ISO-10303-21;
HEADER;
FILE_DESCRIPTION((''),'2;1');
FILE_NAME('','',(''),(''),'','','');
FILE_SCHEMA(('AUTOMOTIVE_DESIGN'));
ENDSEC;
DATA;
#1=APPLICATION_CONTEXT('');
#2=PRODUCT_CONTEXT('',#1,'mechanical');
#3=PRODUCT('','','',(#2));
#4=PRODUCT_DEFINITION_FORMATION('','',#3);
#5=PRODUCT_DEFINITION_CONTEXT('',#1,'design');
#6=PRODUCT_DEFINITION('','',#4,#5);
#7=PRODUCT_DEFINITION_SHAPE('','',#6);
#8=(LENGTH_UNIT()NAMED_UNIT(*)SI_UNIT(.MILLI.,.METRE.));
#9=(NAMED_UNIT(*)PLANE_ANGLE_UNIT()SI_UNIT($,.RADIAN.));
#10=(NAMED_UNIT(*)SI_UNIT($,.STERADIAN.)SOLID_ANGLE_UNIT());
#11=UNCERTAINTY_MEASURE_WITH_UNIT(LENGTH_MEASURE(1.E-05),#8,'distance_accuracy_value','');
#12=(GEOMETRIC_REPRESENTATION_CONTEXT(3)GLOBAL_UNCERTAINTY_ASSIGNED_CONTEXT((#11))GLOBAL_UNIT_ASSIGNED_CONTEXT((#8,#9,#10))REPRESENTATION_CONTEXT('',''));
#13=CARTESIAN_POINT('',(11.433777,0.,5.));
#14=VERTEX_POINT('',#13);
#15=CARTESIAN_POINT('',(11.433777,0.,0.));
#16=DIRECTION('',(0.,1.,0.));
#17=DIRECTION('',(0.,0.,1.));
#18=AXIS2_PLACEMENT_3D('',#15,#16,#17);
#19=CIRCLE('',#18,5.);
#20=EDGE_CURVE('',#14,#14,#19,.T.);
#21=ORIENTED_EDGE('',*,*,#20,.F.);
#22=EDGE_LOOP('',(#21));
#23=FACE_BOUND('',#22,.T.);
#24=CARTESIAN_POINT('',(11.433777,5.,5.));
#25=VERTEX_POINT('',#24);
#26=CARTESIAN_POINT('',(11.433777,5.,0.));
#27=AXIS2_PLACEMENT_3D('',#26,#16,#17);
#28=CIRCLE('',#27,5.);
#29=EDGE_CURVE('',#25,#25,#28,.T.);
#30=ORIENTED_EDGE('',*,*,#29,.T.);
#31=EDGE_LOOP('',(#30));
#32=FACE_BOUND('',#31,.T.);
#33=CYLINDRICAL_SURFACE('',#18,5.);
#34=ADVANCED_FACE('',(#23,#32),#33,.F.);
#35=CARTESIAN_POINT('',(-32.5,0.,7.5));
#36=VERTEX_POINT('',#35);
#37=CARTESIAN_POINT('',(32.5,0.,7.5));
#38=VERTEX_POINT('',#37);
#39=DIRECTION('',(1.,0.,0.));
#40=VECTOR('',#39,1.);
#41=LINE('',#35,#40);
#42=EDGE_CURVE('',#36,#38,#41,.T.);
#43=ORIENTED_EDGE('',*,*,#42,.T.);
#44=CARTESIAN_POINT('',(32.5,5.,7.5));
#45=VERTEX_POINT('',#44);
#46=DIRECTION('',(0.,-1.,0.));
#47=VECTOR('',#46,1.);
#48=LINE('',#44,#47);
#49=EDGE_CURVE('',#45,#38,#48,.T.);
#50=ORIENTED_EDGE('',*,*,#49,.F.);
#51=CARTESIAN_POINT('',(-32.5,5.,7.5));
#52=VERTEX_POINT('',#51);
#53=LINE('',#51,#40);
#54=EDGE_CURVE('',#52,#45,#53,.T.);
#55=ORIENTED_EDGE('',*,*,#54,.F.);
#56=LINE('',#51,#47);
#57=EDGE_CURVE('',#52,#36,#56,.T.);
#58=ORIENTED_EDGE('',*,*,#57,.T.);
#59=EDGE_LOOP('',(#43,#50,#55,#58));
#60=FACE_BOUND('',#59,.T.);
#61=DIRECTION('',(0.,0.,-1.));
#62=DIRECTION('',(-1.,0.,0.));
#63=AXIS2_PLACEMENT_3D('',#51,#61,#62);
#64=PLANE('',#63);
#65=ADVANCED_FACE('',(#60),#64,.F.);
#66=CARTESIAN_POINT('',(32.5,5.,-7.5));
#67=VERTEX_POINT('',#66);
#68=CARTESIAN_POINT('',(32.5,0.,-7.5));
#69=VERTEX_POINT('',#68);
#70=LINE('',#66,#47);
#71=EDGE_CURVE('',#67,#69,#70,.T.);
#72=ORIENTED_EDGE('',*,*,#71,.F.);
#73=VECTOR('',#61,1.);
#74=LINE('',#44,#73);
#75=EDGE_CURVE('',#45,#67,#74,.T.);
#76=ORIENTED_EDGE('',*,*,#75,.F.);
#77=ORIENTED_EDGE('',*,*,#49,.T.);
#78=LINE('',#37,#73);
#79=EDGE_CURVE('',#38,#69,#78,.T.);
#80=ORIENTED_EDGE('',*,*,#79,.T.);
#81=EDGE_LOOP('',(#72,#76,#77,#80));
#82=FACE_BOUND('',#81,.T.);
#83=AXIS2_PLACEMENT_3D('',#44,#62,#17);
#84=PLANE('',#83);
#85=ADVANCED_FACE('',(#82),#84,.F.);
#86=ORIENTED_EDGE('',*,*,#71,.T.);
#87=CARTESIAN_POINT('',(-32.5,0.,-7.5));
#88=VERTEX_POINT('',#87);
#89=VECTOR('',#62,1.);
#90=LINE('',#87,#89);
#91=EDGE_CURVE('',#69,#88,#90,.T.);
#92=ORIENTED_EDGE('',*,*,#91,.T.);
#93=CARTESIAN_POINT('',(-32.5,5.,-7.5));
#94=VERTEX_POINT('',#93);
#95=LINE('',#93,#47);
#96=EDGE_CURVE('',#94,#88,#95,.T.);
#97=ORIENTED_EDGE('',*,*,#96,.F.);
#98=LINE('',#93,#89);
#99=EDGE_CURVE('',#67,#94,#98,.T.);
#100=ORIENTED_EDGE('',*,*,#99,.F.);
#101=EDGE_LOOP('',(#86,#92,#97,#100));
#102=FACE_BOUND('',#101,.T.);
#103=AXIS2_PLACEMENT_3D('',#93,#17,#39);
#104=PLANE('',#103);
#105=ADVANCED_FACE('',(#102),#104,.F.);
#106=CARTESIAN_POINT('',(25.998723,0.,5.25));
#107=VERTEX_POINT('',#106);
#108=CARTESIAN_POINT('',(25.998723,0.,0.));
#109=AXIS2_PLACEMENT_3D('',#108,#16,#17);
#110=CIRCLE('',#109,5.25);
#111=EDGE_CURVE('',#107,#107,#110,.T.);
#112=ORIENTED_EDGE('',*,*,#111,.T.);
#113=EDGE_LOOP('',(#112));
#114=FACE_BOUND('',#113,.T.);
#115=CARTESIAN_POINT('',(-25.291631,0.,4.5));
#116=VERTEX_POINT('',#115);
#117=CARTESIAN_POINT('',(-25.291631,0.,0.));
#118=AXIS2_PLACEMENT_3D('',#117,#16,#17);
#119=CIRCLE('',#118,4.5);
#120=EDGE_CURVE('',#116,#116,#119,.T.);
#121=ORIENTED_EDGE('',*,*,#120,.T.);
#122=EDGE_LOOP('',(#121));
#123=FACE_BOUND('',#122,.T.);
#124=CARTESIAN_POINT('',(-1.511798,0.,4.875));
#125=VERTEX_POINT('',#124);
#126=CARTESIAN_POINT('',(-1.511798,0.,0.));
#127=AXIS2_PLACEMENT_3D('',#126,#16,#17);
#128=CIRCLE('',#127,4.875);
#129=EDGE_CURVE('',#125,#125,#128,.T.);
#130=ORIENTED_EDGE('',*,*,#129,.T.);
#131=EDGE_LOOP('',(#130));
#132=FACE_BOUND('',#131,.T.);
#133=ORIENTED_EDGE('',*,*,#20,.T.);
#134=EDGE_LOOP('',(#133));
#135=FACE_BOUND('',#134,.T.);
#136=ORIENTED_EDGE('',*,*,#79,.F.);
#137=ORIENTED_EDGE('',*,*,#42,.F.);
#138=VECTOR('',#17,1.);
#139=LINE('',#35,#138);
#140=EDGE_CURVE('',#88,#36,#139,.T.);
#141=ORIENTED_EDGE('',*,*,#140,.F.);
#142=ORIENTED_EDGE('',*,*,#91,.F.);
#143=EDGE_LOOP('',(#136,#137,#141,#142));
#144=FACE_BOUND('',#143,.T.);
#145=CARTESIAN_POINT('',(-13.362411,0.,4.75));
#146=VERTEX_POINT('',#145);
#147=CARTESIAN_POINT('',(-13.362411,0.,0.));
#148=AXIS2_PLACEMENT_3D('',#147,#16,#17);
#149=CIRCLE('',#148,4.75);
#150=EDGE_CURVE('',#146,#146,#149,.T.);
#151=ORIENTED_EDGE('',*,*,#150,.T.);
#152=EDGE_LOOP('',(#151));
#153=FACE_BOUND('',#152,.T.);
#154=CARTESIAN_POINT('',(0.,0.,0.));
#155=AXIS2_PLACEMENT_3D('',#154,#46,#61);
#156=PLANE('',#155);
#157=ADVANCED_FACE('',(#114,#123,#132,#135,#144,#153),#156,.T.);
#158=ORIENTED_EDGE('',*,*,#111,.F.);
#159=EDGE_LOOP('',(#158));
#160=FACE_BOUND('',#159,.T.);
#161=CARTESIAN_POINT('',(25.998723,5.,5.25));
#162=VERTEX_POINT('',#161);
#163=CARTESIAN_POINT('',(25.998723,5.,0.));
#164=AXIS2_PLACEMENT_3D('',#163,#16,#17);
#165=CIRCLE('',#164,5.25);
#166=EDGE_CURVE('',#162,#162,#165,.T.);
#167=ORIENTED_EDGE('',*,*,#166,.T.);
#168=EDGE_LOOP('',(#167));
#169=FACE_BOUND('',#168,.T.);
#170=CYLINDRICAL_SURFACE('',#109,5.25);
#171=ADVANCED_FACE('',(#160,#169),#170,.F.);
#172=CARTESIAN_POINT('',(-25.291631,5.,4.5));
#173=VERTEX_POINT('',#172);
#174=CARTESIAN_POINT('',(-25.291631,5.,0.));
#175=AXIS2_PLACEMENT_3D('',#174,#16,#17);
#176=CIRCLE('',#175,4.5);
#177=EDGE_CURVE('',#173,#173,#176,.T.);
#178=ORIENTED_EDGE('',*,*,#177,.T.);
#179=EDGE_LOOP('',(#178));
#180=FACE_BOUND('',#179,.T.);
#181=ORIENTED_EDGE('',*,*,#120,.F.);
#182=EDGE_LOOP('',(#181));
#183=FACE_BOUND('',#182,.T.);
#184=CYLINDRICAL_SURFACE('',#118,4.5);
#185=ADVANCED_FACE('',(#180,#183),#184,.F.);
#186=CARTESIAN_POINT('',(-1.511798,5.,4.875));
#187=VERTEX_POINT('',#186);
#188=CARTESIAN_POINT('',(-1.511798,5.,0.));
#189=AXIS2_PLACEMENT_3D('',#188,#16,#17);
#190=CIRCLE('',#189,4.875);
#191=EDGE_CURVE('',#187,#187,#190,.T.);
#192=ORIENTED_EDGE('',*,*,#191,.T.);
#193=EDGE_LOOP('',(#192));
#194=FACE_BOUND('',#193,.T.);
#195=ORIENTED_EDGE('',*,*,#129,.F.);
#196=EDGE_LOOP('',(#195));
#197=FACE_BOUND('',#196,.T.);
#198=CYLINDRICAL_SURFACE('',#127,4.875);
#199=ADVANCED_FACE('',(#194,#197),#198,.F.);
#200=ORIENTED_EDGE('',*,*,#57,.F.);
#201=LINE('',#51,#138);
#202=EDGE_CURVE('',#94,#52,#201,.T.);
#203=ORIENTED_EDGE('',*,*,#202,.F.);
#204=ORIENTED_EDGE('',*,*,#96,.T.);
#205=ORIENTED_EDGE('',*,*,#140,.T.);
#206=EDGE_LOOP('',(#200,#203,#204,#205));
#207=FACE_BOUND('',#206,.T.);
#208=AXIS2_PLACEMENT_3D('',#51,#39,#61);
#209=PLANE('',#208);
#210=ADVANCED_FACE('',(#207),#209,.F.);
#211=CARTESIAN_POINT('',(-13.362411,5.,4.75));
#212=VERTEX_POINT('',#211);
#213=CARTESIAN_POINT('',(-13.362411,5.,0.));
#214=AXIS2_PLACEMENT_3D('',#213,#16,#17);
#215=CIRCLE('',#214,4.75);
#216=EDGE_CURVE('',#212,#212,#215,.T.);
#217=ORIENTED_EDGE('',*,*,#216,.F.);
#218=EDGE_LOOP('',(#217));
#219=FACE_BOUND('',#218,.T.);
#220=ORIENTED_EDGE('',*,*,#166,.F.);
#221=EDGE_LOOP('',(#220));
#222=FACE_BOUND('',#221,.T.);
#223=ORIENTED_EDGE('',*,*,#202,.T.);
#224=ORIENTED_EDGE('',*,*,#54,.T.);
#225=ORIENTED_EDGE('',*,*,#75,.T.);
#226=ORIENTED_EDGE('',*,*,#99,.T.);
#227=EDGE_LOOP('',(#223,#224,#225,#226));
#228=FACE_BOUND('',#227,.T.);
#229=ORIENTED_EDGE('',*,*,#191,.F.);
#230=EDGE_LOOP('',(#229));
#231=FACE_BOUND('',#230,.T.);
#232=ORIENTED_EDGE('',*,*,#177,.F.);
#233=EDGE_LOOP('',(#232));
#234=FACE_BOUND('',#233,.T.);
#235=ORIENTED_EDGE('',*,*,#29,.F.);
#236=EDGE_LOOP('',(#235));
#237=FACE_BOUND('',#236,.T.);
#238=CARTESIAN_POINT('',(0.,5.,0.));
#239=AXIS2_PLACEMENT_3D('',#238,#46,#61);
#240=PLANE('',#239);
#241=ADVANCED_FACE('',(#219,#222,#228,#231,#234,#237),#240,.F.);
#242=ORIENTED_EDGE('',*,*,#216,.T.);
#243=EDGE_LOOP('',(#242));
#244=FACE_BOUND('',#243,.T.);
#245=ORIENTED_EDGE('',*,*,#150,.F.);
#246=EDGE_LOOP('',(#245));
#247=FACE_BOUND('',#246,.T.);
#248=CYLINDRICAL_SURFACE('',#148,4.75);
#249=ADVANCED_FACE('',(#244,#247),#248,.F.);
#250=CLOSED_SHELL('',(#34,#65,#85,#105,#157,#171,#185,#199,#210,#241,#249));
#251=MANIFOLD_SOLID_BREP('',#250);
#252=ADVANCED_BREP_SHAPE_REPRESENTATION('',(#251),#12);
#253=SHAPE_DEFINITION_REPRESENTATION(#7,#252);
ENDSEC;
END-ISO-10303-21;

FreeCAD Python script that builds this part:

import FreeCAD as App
import Part
import Sketcher


def add_polygon(sketch, points):
    """Adds a closed chain of lines whose ends are joined by coincident constraints."""
    first, n = sketch.GeometryCount, len(points)
    for a, b in zip(points, points[1:] + points[:1]):
        sketch.addGeometry(Part.LineSegment(App.Vector(*a, 0), App.Vector(*b, 0)), False)
    for i in range(n):
        sketch.addConstraint(Sketcher.Constraint("Coincident", first + i, 2, first + (i + 1) % n, 1))

doc = App.newDocument("Part")
body = doc.addObject("PartDesign::Body", "Body")

sketch1 = body.newObject("Sketcher::SketchObject", "Sketch")
sketch1.AttachmentSupport = (doc.getObject("XZ_Plane"), [""])
sketch1.MapMode = "FlatFace"
add_polygon(sketch1, [(-32.5, -7.5), (-32.5, 7.5), (32.5, 7.5), (32.5, -7.5)])
sketch1.addConstraint(Sketcher.Constraint("Vertical", 0))
sketch1.addConstraint(Sketcher.Constraint("Horizontal", 1))
sketch1.addConstraint(Sketcher.Constraint("Vertical", 2))
sketch1.addConstraint(Sketcher.Constraint("Horizontal", 3))
sketch1.addConstraint(Sketcher.Constraint("Symmetric", 0, 2, 2, 2, -1, 1))
sketch1.addConstraint(Sketcher.Constraint("DistanceX", 1, 1, 1, 2, 65.0))
sketch1.addConstraint(Sketcher.Constraint("DistanceY", 0, 1, 0, 2, 15.0))
pad1 = body.newObject("PartDesign::Pad", "Pad")
pad1.Profile = sketch1
pad1.Length = 5
pad1.Reversed = True

sketch2 = body.newObject("Sketcher::SketchObject", "Sketch001")
sketch2.AttachmentSupport = (doc.getObject("XZ_Plane"), [""])
sketch2.MapMode = "FlatFace"
sketch2.AttachmentOffset = App.Placement(App.Vector(0, 0, -5), App.Rotation())
sketch2.addGeometry(Part.Circle(App.Vector(-13.362411, 0, 0), App.Vector(0, 0, 1), 4.75), False)
sketch2.addGeometry(Part.Circle(App.Vector(11.433777, 0, 0), App.Vector(0, 0, 1), 5), False)
sketch2.addGeometry(Part.Circle(App.Vector(25.998723, 0, 0), App.Vector(0, 0, 1), 5.25), False)
sketch2.addGeometry(Part.Circle(App.Vector(-25.291631, 0, 0), App.Vector(0, 0, 1), 4.5), False)
sketch2.addGeometry(Part.Circle(App.Vector(-1.511798, 0, 0), App.Vector(0, 0, 1), 4.875), False)
sketch2.addConstraint(Sketcher.Constraint("PointOnObject", 0, 3, -1))
sketch2.addConstraint(Sketcher.Constraint("PointOnObject", 1, 3, -1))
sketch2.addConstraint(Sketcher.Constraint("PointOnObject", 2, 3, -1))
sketch2.addConstraint(Sketcher.Constraint("PointOnObject", 3, 3, -1))
sketch2.addConstraint(Sketcher.Constraint("PointOnObject", 4, 3, -1))
sketch2.addConstraint(Sketcher.Constraint("Diameter", 1, 10.0))
sketch2.addConstraint(Sketcher.Constraint("Diameter", 3, 9.0))
sketch2.addConstraint(Sketcher.Constraint("Diameter", 0, 9.5))
sketch2.addConstraint(Sketcher.Constraint("Diameter", 2, 10.5))
sketch2.addConstraint(Sketcher.Constraint("Diameter", 4, 9.75))
sketch2.addConstraint(Sketcher.Constraint("DistanceX", 4, 3, -1, 1, 1.511798))
sketch2.addConstraint(Sketcher.Constraint("DistanceX", 0, 3, -1, 1, 13.362411))
sketch2.addConstraint(Sketcher.Constraint("DistanceX", 3, 3, -1, 1, 25.291631))
sketch2.addConstraint(Sketcher.Constraint("DistanceX", 0, 3, 1, 3, 24.796189))
sketch2.addConstraint(Sketcher.Constraint("DistanceX", 4, 3, 2, 3, 27.510521))
pocket1 = body.newObject("PartDesign::Pocket", "Pocket")
pocket1.Profile = sketch2
pocket1.Length = 5
pocket1.Reversed = True

doc.recompute()
